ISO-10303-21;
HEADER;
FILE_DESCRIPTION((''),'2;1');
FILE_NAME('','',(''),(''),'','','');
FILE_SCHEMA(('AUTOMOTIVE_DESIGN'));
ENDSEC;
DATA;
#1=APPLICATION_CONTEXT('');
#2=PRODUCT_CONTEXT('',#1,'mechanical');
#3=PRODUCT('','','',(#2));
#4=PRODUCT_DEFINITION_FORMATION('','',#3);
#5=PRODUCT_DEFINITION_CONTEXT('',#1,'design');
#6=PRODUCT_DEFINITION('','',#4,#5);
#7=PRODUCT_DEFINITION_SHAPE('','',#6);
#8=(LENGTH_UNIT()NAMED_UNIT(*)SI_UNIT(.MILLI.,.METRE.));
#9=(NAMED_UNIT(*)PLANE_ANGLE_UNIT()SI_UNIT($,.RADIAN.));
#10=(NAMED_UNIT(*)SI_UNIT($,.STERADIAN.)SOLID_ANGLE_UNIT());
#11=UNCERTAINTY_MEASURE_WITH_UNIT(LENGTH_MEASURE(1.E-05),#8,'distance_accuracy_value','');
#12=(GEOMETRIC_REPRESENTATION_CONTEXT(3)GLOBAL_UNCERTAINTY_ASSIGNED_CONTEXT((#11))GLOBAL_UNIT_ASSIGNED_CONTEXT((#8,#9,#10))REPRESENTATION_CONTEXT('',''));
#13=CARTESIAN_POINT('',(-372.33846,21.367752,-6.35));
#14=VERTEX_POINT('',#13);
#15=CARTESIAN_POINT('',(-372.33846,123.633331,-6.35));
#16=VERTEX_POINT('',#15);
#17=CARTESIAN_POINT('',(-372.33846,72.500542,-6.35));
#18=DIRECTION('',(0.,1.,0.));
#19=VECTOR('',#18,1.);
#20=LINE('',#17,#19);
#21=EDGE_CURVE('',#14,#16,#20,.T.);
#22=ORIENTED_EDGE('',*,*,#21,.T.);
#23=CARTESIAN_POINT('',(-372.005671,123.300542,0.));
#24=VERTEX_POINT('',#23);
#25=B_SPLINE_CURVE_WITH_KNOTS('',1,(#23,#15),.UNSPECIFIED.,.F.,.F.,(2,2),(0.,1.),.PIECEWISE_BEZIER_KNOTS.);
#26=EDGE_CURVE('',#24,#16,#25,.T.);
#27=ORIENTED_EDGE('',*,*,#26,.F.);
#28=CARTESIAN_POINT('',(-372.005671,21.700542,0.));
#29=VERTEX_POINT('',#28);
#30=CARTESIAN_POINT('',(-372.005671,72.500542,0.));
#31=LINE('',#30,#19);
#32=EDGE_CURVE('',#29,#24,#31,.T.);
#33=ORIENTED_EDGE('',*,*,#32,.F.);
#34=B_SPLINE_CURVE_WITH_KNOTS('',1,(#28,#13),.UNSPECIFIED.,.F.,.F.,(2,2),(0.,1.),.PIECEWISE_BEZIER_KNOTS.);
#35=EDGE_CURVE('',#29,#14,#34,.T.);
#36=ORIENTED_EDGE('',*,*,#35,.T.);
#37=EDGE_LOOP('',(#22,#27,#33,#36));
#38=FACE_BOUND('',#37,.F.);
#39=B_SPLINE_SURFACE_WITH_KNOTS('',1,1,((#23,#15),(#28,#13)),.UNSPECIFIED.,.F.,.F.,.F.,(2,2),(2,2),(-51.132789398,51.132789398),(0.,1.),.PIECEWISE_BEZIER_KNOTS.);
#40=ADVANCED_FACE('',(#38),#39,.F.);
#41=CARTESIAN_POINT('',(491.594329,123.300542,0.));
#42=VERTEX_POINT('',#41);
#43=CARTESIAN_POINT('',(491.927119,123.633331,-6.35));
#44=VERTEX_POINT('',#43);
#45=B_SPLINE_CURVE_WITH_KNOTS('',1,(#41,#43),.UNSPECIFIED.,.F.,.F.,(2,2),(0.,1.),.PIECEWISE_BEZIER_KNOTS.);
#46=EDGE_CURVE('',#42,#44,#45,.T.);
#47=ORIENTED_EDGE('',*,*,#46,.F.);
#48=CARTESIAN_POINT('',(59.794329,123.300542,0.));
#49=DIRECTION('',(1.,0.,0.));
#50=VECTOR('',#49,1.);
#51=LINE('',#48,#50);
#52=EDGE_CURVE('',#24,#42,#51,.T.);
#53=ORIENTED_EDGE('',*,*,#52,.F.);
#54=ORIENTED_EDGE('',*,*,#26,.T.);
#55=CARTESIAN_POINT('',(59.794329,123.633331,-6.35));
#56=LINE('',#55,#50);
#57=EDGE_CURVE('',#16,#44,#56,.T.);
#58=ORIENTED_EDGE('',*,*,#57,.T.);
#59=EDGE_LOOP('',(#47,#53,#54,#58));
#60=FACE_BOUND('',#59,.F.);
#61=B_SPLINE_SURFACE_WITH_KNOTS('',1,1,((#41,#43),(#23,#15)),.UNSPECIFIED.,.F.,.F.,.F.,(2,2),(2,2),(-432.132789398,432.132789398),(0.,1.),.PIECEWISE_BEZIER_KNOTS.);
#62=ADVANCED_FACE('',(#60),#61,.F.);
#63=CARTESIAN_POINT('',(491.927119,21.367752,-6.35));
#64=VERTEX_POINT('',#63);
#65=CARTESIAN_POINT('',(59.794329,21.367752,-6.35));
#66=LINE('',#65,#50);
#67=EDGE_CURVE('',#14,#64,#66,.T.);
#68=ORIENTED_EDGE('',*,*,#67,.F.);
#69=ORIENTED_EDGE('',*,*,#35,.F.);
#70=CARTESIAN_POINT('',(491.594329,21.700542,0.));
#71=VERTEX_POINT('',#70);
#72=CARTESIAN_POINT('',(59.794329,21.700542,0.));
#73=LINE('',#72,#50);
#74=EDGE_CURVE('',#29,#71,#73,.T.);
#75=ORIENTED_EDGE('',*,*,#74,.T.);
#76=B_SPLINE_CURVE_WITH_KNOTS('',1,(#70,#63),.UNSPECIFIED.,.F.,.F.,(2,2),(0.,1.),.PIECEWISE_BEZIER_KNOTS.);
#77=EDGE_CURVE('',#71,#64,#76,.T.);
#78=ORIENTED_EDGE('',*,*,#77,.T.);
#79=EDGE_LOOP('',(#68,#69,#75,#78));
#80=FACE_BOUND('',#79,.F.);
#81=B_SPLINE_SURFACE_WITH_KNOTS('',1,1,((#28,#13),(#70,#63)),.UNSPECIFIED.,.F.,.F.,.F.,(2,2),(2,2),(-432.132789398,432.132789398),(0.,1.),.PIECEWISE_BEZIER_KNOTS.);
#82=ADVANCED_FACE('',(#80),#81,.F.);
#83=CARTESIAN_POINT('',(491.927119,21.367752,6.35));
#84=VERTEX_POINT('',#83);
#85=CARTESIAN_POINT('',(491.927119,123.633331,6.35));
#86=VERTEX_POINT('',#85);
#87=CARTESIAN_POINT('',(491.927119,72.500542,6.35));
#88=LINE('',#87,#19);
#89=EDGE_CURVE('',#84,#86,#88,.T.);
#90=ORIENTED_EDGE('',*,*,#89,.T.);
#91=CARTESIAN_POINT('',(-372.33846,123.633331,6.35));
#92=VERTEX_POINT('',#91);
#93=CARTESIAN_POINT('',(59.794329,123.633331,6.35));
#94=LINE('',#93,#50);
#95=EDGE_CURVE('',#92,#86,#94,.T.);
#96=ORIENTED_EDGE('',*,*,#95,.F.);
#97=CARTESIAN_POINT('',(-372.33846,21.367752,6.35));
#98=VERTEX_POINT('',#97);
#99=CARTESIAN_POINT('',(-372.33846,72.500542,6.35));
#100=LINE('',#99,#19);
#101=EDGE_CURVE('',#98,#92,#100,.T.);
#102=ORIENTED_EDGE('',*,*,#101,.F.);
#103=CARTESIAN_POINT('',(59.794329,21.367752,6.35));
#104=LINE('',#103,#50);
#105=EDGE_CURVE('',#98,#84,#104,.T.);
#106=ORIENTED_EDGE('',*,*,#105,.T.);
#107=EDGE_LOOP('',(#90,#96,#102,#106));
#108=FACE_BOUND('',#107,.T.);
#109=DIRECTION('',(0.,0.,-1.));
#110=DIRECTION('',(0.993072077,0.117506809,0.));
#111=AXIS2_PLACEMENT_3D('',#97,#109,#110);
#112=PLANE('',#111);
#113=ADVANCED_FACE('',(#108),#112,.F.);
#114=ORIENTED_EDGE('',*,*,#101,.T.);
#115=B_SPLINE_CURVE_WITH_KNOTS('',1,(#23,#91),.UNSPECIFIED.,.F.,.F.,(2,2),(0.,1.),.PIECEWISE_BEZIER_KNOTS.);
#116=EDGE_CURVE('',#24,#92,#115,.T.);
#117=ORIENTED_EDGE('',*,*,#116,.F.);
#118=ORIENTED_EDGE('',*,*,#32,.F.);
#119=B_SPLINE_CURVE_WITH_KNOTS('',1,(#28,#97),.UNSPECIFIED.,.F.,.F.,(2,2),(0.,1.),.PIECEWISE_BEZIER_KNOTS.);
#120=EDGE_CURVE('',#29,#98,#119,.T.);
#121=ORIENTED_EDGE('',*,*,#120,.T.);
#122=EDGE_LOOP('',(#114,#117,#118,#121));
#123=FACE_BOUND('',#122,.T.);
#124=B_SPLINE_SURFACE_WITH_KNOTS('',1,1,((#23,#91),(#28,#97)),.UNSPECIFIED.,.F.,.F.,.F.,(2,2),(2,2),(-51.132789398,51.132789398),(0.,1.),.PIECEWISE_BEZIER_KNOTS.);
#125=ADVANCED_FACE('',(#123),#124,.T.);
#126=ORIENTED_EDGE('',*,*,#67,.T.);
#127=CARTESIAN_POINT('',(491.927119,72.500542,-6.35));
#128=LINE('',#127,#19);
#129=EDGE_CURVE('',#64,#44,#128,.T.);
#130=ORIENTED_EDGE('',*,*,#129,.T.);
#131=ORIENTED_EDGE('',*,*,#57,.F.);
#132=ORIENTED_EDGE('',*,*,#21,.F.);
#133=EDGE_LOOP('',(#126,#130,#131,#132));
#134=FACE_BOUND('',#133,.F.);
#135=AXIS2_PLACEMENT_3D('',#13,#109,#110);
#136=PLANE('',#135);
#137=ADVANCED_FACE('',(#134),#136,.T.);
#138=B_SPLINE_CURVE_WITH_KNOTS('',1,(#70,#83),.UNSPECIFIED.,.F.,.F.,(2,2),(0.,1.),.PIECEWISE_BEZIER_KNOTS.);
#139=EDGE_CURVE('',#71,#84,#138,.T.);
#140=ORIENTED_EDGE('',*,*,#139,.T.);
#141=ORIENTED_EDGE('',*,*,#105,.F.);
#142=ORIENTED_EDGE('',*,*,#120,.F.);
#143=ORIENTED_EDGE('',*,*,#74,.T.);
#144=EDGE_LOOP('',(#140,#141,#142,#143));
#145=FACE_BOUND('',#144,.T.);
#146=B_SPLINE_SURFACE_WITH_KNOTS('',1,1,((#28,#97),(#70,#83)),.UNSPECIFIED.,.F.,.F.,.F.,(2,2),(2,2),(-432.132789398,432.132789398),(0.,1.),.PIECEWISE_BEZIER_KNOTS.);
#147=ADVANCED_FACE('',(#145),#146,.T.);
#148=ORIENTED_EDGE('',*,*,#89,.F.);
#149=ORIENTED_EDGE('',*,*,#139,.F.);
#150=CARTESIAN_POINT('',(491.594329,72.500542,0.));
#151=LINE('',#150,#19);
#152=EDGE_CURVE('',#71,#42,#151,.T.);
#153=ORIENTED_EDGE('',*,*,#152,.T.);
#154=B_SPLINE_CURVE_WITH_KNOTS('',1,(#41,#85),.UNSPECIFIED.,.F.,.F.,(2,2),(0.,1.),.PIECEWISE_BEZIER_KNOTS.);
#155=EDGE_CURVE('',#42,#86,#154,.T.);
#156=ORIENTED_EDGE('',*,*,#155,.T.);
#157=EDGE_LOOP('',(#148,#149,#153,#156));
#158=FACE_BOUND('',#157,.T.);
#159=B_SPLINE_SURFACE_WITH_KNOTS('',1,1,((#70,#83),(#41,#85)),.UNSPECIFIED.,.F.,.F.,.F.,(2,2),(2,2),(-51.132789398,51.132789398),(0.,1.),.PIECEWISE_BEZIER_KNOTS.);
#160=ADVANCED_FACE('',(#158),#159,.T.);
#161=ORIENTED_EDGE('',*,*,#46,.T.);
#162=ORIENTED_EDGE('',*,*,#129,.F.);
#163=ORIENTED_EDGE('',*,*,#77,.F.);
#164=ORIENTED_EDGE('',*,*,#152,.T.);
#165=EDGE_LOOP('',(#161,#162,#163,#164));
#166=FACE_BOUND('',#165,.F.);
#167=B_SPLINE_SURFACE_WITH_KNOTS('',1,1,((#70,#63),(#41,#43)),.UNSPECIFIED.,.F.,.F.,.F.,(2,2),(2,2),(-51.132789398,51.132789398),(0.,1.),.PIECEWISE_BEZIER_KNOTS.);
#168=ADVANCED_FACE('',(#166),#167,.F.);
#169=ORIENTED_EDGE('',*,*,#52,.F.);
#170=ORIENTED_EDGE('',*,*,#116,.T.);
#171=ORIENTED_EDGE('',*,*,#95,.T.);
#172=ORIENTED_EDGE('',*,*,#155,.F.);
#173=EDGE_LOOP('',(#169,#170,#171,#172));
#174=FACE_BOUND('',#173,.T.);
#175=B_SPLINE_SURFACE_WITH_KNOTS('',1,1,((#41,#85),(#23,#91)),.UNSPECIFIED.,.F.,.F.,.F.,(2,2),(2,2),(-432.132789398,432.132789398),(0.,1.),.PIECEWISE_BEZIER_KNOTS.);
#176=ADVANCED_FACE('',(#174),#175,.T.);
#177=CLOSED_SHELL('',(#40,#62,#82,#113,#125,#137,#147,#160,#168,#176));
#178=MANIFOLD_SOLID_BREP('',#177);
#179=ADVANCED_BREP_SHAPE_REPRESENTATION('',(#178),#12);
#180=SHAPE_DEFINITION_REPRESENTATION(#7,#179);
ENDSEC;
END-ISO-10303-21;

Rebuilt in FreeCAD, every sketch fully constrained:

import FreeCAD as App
import Part
import Sketcher

V = App.Vector
Q = App.Units.Quantity

doc = App.newDocument("Part")
body = doc.addObject("PartDesign::Body", "Body")

# Sketch on XY plane
sketch1 = doc.addObject("Sketcher::SketchObject", "Sketch")
body.addObject(sketch1)
sketch1.AttachmentSupport = (doc.XY_Plane, [""])
sketch1.MapMode = "FlatFace"
sketch1.addGeometry([
    Part.LineSegment(V(-372, 123, 0), V(-372, 22, 0)),
    Part.LineSegment(V(-372, 22, 0), V(492, 22, 0)),
    Part.LineSegment(V(492, 22, 0), V(492, 123, 0)),
    Part.LineSegment(V(492, 123, 0), V(-372, 123, 0)),
], False)
sketch1.addConstraint([
    Sketcher.Constraint("Coincident", 0, 2, 1, 1),
    Sketcher.Constraint("Coincident", 1, 2, 2, 1),
    Sketcher.Constraint("Coincident", 2, 2, 3, 1),
    Sketcher.Constraint("Coincident", 3, 2, 0, 1),
    Sketcher.Constraint("Vertical", 0),
    Sketcher.Constraint("Horizontal", 1),
    Sketcher.Constraint("Vertical", 2),
    Sketcher.Constraint("Horizontal", 3),
    Sketcher.Constraint("DistanceX", 1, 1, 1, 2, Q("34 in")),
    Sketcher.Constraint("DistanceY", 0, 2, 0, 1, Q("4 in")),
    Sketcher.Constraint("DistanceX", 0, 2, -1, 1, Q("372.005671 mm")),
    Sketcher.Constraint("DistanceY", -1, 1, 0, 2, Q("21.700542 mm")),
])
pad1 = doc.addObject("PartDesign::Pad", "Pad")
body.addObject(pad1)
pad1.Profile = sketch1
pad1.Length = Q("0.5 in")
pad1.Midplane = True
pad1.TaperAngle = 3

doc.recompute()
